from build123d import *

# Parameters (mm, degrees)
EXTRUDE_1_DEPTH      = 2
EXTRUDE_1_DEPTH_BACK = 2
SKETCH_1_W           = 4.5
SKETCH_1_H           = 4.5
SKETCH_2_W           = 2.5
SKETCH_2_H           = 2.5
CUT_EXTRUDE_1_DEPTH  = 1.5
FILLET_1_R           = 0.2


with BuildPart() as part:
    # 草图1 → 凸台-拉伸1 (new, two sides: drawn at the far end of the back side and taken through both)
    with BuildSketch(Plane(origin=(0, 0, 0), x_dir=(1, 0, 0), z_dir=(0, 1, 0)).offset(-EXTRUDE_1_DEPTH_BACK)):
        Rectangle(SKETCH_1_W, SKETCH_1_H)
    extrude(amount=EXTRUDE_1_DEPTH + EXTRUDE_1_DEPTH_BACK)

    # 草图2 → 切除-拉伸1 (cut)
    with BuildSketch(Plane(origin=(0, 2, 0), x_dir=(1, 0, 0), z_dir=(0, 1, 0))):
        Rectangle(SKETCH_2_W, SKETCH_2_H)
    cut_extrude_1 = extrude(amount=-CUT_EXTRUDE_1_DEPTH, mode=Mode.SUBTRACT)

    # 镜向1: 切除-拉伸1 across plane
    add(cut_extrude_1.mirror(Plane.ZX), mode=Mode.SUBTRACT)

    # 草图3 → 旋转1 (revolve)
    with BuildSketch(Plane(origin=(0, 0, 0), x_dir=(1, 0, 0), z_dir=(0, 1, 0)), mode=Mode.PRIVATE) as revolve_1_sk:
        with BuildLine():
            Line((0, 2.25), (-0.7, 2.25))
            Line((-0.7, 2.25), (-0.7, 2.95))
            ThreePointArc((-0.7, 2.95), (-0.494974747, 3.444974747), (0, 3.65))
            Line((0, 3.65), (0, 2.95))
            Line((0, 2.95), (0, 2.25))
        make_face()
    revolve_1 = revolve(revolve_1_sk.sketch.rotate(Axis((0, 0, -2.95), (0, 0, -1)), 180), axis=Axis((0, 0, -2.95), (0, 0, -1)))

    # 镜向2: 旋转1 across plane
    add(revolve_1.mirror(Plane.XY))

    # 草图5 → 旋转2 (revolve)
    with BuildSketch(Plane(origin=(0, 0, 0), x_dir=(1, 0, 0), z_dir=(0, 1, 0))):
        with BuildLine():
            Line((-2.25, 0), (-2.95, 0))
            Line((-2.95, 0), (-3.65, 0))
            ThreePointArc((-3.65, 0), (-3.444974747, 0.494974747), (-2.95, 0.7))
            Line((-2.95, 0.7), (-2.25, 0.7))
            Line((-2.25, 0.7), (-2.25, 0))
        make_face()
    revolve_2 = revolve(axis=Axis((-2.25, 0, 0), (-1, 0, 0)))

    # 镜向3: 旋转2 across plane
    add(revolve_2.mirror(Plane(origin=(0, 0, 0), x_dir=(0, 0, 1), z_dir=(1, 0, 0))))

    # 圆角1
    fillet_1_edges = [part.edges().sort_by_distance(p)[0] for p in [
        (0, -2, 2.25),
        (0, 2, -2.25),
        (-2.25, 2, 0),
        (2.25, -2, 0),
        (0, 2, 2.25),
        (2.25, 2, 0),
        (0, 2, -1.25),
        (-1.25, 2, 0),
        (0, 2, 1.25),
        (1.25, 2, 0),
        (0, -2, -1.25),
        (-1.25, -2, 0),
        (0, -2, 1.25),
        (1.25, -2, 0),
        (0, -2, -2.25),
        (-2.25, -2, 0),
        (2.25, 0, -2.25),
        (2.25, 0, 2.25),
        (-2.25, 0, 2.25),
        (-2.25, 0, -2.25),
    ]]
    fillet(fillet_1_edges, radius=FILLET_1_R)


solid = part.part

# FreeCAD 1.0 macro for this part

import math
import FreeCAD as App
import Part
import Sketcher
from FreeCAD import Vector


def edges_at(feature, points):
    """Names of the edges that pass closest to the given points."""
    edges = feature.Shape.Edges
    near = lambda p: min(range(len(edges)), key=lambda i: edges[i].distToShape(Part.Vertex(*p))[0])
    return sorted({f"Edge{near(p) + 1}" for p in points})


def add_polygon(sketch, points):
    """Adds a closed chain of lines whose ends are joined by coincident constraints."""
    first, n = sketch.GeometryCount, len(points)
    for a, b in zip(points, points[1:] + points[:1]):
        sketch.addGeometry(Part.LineSegment(App.Vector(*a, 0), App.Vector(*b, 0)), False)
    for i in range(n):
        sketch.addConstraint(Sketcher.Constraint("Coincident", first + i, 2, first + (i + 1) % n, 1))

doc = App.newDocument("Part")
body = doc.addObject("PartDesign::Body", "Body")

sketch1 = body.newObject("Sketcher::SketchObject", "Sketch")
sketch1.AttachmentSupport = (doc.getObject("XZ_Plane"), [""])
sketch1.MapMode = "FlatFace"
add_polygon(sketch1, [(-2.2, -2.2), (-2.2, 2.2), (2.2, 2.2), (2.2, -2.2)])
sketch1.addConstraint(Sketcher.Constraint("Vertical", 0))
sketch1.addConstraint(Sketcher.Constraint("Horizontal", 1))
sketch1.addConstraint(Sketcher.Constraint("Vertical", 2))
sketch1.addConstraint(Sketcher.Constraint("Horizontal", 3))
sketch1.addConstraint(Sketcher.Constraint("Symmetric", 0, 2, 2, 2, -1, 1))
sketch1.addConstraint(Sketcher.Constraint("Equal", 3, 0))
sketch1.addConstraint(Sketcher.Constraint("DistanceX", 1, 1, 1, 2, 4.5))
pad1 = body.newObject("PartDesign::Pad", "Pad")
pad1.Profile = sketch1
pad1.Type = "TwoLengths"
pad1.Length = 2
pad1.Length2 = 2
pad1.Reversed = True

sketch2 = body.newObject("Sketcher::SketchObject", "Sketch001")
sketch2.AttachmentSupport = (doc.getObject("XZ_Plane"), [""])
sketch2.MapMode = "FlatFace"
sketch2.AttachmentOffset = App.Placement(Vector(0, 0, -2), App.Rotation())
add_polygon(sketch2, [(-1.2, -1.2), (-1.2, 1.2), (1.2, 1.2), (1.2, -1.2)])
sketch2.addConstraint(Sketcher.Constraint("Vertical", 0))
sketch2.addConstraint(Sketcher.Constraint("Horizontal", 1))
sketch2.addConstraint(Sketcher.Constraint("Vertical", 2))
sketch2.addConstraint(Sketcher.Constraint("Horizontal", 3))
sketch2.addConstraint(Sketcher.Constraint("Symmetric", 0, 2, 2, 2, -1, 1))
sketch2.addConstraint(Sketcher.Constraint("Equal", 3, 0))
sketch2.addConstraint(Sketcher.Constraint("DistanceX", 1, 1, 1, 2, 2.5))
pocket1 = body.newObject("PartDesign::Pocket", "Pocket")
pocket1.Profile = sketch2
pocket1.Length = 1.5
pocket1.Reversed = True
doc.recompute()

mirrored = body.newObject("PartDesign::Mirrored", "Mirrored")
mirrored.Originals = [pocket1]
mirrored.MirrorPlane = (doc.getObject("XZ_Plane"), [""])
body.Tip = mirrored

sketch3 = body.newObject("Sketcher::SketchObject", "Sketch002")
sketch3.AttachmentSupport = (doc.getObject("XZ_Plane"), [""])
sketch3.MapMode = "FlatFace"
sketch3.addGeometry(Part.LineSegment(Vector(-0.7, -2.2, 0), Vector(0, -2.2, 0)), False)
sketch3.addGeometry(Part.LineSegment(Vector(0, -2.2, 0), Vector(0, -3.6, 0)), False)
sketch3.addGeometry(Part.ArcOfCircle(Part.Circle(Vector(0, -3, 0), Vector(0, 0, 1), 0.7), math.radians(180), math.radians(270)), False)
sketch3.addGeometry(Part.LineSegment(Vector(-0.7, -3, 0), Vector(-0.7, -2.2, 0)), False)
sketch3.addConstraint(Sketcher.Constraint("Coincident", 0, 2, 1, 1))
sketch3.addConstraint(Sketcher.Constraint("Coincident", 1, 2, 2, 2))
sketch3.addConstraint(Sketcher.Constraint("Tangent", 2, 1, 3, 1))
sketch3.addConstraint(Sketcher.Constraint("Coincident", 3, 2, 0, 1))
sketch3.addConstraint(Sketcher.Constraint("Horizontal", 0))
sketch3.addConstraint(Sketcher.Constraint("Vertical", 1))
sketch3.addConstraint(Sketcher.Constraint("Vertical", 3))
sketch3.addConstraint(Sketcher.Constraint("PointOnObject", 2, 3, -2))
sketch3.addConstraint(Sketcher.Constraint("PointOnObject", 0, 2, -2))
sketch3.addConstraint(Sketcher.Constraint("Equal", 0, 3))
sketch3.addConstraint(Sketcher.Constraint("Radius", 2, 0.7))
sketch3.addConstraint(Sketcher.Constraint("DistanceY", 2, 3, -1, 1, 2.95))
revolution = body.newObject("PartDesign::Revolution", "Revolution")
revolution.Profile = sketch3
revolution.ReferenceAxis = (sketch3, ["V_Axis"])
revolution.Angle = 360
doc.recompute()

mirrored2 = body.newObject("PartDesign::Mirrored", "Mirrored001")
mirrored2.Originals = [revolution]
mirrored2.MirrorPlane = (doc.getObject("XY_Plane"), [""])
body.Tip = mirrored2

sketch4 = body.newObject("Sketcher::SketchObject", "Sketch003")
sketch4.AttachmentSupport = (doc.getObject("XZ_Plane"), [""])
sketch4.MapMode = "FlatFace"
sketch4.addGeometry(Part.LineSegment(Vector(-3.6, 0, 0), Vector(-2.2, 0, 0)), False)
sketch4.addGeometry(Part.LineSegment(Vector(-2.2, 0, 0), Vector(-2.2, -0.7, 0)), False)
sketch4.addGeometry(Part.LineSegment(Vector(-2.2, -0.7, 0), Vector(-3, -0.7, 0)), False)
sketch4.addGeometry(Part.ArcOfCircle(Part.Circle(Vector(-3, 0, 0), Vector(0, 0, 1), 0.7), math.radians(180), math.radians(270)), False)
sketch4.addConstraint(Sketcher.Constraint("Coincident", 0, 2, 1, 1))
sketch4.addConstraint(Sketcher.Constraint("Coincident", 1, 2, 2, 1))
sketch4.addConstraint(Sketcher.Constraint("Tangent", 2, 2, 3, 2))
sketch4.addConstraint(Sketcher.Constraint("Coincident", 3, 1, 0, 1))
sketch4.addConstraint(Sketcher.Constraint("Horizontal", 0))
sketch4.addConstraint(Sketcher.Constraint("Vertical", 1))
sketch4.addConstraint(Sketcher.Constraint("Horizontal", 2))
sketch4.addConstraint(Sketcher.Constraint("PointOnObject", 3, 3, -1))
sketch4.addConstraint(Sketcher.Constraint("PointOnObject", 0, 2, -1))
sketch4.addConstraint(Sketcher.Constraint("Equal", 2, 1))
sketch4.addConstraint(Sketcher.Constraint("Radius", 3, 0.7))
sketch4.addConstraint(Sketcher.Constraint("DistanceX", 3, 3, -1, 1, 2.95))
revolution2 = body.newObject("PartDesign::Revolution", "Revolution001")
revolution2.Profile = sketch4
revolution2.ReferenceAxis = (sketch4, ["H_Axis"])
revolution2.Angle = 360
doc.recompute()

mirrored3 = body.newObject("PartDesign::Mirrored", "Mirrored002")
mirrored3.Originals = [revolution2]
mirrored3.MirrorPlane = (doc.getObject("YZ_Plane"), [""])
body.Tip = mirrored3
doc.recompute()

fillet = body.newObject("PartDesign::Fillet", "Fillet")
fillet.Base = (mirrored3, edges_at(mirrored3, [
    (0, -2, 2.25),
    (0, 2, -2.25),
    (-2.25, 2, 0),
    (2.25, -2, 0),
    (0, 2, 2.25),
    (2.25, 2, 0),
    (0, 2, -1.25),
    (-1.25, 2, 0),
    (0, 2, 1.25),
    (1.25, 2, 0),
    (0, -2, -1.25),
    (-1.25, -2, 0),
    (0, -2, 1.25),
    (1.25, -2, 0),
    (0, -2, -2.25),
    (-2.25, -2, 0),
    (2.25, 0, -2.25),
    (2.25, 0, 2.25),
    (-2.25, 0, 2.25),
    (-2.25, 0, -2.25),
]))
fillet.Radius = 0.2

doc.recompute()
